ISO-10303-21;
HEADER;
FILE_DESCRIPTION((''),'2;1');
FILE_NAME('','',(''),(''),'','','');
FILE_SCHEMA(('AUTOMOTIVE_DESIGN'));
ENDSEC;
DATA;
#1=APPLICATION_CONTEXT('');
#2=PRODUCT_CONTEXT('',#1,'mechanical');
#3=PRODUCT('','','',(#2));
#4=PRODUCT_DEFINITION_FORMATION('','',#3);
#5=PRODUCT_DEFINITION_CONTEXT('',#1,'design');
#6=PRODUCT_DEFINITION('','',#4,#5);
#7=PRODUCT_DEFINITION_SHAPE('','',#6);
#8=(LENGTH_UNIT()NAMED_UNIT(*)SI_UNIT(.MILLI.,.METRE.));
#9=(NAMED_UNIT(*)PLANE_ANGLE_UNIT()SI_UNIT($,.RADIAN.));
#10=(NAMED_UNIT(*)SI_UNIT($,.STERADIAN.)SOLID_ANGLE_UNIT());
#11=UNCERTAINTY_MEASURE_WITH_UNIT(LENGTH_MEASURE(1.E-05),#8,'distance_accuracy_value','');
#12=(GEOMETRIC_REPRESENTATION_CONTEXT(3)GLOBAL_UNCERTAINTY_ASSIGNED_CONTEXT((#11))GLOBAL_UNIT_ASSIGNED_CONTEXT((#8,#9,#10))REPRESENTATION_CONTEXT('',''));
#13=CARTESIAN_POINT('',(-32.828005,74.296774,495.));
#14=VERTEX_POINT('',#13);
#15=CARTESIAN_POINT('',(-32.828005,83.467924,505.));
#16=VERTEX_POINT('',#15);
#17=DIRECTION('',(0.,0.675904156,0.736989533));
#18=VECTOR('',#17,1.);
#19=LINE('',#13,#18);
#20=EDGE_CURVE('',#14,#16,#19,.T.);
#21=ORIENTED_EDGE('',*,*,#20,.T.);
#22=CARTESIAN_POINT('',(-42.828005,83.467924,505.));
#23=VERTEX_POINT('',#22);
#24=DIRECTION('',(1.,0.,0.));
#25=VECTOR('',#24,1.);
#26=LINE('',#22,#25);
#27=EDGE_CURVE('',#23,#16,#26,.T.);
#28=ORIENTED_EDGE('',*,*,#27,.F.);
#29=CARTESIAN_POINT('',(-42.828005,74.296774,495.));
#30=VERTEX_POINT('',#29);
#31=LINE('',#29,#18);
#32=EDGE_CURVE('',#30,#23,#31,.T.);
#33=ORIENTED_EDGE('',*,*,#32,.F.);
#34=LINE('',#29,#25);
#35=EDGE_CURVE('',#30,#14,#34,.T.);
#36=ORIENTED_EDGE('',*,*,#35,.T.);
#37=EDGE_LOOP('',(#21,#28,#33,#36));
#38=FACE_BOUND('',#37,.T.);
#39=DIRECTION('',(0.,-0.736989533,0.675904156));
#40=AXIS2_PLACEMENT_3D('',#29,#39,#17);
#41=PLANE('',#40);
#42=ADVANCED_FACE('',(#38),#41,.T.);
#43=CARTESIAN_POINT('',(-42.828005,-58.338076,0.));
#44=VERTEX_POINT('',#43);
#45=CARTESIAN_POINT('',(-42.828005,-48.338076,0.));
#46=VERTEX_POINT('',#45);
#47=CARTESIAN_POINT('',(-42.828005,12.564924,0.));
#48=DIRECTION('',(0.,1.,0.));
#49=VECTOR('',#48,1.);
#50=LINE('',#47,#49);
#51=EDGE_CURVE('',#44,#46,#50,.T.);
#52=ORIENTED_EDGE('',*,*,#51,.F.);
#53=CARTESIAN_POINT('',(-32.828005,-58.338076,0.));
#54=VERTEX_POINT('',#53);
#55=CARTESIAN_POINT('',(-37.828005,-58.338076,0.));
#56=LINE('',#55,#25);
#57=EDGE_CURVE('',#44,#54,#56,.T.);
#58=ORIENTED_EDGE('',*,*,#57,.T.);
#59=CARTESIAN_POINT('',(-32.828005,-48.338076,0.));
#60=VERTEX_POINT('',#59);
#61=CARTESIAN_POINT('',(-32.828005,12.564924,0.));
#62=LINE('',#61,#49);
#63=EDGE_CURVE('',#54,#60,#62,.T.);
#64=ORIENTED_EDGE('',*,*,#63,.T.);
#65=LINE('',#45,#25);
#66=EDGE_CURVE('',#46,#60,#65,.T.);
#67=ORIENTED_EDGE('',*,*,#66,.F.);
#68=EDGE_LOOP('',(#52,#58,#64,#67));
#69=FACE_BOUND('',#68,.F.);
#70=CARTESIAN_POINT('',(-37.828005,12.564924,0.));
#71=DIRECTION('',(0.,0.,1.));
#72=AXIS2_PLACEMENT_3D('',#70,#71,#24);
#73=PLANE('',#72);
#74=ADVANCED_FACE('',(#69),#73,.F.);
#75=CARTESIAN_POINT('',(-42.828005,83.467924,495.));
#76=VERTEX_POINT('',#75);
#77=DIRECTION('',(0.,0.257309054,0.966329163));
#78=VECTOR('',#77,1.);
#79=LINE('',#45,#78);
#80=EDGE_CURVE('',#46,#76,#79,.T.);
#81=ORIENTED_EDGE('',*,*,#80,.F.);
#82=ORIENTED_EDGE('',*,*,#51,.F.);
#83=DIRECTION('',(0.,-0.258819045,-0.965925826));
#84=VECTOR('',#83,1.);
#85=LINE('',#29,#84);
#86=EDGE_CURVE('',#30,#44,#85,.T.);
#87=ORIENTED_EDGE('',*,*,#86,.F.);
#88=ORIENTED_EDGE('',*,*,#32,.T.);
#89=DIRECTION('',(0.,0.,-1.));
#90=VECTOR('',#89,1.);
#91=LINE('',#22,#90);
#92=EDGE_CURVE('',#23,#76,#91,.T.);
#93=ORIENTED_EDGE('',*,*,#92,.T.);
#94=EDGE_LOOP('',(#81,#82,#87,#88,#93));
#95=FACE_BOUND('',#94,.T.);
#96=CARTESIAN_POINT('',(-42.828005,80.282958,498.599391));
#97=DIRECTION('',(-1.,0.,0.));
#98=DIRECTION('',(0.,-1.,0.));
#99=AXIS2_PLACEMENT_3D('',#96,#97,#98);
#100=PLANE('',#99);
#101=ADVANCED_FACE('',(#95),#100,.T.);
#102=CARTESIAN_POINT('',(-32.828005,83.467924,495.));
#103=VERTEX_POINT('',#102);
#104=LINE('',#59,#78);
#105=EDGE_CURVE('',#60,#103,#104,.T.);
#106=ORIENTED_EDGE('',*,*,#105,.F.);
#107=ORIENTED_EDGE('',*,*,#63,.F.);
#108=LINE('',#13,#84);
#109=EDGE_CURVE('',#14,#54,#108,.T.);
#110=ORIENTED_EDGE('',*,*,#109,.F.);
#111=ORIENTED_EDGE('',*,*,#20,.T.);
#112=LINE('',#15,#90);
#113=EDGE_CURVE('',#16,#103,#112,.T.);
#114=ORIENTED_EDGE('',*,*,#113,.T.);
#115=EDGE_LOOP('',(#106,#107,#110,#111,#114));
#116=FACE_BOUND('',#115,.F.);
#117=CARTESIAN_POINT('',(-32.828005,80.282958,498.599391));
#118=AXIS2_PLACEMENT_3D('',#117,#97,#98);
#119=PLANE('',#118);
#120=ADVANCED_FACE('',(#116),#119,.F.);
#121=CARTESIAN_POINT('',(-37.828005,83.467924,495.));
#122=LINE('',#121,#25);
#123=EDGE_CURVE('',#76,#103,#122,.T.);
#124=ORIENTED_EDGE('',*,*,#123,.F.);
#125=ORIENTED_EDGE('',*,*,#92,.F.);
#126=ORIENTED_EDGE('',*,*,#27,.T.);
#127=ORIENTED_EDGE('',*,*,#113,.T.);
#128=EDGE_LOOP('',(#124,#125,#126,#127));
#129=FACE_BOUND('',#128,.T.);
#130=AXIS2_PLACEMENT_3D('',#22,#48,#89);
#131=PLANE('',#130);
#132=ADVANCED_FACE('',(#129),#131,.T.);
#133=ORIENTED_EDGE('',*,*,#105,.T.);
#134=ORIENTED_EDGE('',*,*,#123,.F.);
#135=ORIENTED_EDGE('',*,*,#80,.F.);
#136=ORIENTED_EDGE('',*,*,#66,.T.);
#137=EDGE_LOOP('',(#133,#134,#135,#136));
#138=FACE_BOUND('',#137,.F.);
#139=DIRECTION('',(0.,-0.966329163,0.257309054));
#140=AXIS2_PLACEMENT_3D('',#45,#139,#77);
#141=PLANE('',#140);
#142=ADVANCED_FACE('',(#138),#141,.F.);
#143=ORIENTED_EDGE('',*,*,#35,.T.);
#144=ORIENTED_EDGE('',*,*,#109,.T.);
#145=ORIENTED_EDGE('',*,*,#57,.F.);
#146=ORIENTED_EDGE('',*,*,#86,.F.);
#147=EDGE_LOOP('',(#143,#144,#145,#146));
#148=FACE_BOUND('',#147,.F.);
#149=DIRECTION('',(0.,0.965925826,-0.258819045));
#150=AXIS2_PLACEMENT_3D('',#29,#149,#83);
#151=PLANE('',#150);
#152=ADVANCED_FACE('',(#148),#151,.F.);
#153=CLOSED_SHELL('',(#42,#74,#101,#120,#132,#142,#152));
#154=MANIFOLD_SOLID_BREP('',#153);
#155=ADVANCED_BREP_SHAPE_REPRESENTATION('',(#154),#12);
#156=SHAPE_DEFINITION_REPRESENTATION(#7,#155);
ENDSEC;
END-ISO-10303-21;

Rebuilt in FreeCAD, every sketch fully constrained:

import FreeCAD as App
import Part
import Sketcher
from FreeCAD import Vector
Q = App.Units.Quantity


def add_polygon(sketch, points):
    """Adds a closed chain of lines whose ends are joined by coincident constraints."""
    first, n = sketch.GeometryCount, len(points)
    for a, b in zip(points, points[1:] + points[:1]):
        sketch.addGeometry(Part.LineSegment(App.Vector(*a, 0), App.Vector(*b, 0)), False)
    for i in range(n):
        sketch.addConstraint(Sketcher.Constraint("Coincident", first + i, 2, first + (i + 1) % n, 1))

doc = App.newDocument("Part")
body = doc.addObject("PartDesign::Body", "Body")

sketch1 = body.newObject("Sketcher::SketchObject", "Sketch")
sketch1.AttachmentSupport = (doc.getObject("XY_Plane"), [""])
sketch1.MapMode = "FlatFace"
add_polygon(sketch1, [(-43, 83), (-43, -58), (-33, -58), (-33, 83)])
sketch1.addConstraint([
    Sketcher.Constraint("Vertical", 0),
    Sketcher.Constraint("Horizontal", 1),
    Sketcher.Constraint("Vertical", 2),
    Sketcher.Constraint("Horizontal", 3),
    Sketcher.Constraint("DistanceX", 1, 1, 1, 2, Q("10 mm")),
    Sketcher.Constraint("DistanceY", 0, 2, 0, 1, Q("141.806 mm")),
    Sketcher.Constraint("DistanceX", 0, 2, -1, 1, Q("42.828005 mm")),
    Sketcher.Constraint("DistanceY", 0, 2, -1, 1, Q("58.338076 mm")),
])
pad1 = body.newObject("PartDesign::Pad", "Pad")
pad1.Profile = sketch1
pad1.Length = 495

sketch2 = body.newObject("Sketcher::SketchObject", "Sketch001")
sketch2.AttachmentSupport = (doc.getObject("YZ_Plane"), [""])
sketch2.MapMode = "FlatFace"
sketch2.AttachmentOffset = App.Placement(Vector(0, 0, -42.828005), App.Rotation())
add_polygon(sketch2, [(83, 0), (-48, 0), (83, 495)])
add_polygon(sketch2, [(74, 495), (-58, 0), (-58, 495)])
sketch2.addConstraint([
    Sketcher.Constraint("Horizontal", 0),
    Sketcher.Constraint("Vertical", 2),
    Sketcher.Constraint("Vertical", 4),
    Sketcher.Constraint("Horizontal", 5),
    Sketcher.Constraint("PointOnObject", 0, 2, -1),
    Sketcher.Constraint("PointOnObject", 3, 2, -1),
    Sketcher.Constraint("Horizontal", 1, 2, 4, 2),
    Sketcher.Constraint("DistanceY", 2, 2, 2, 1, Q("495 mm")),
    Sketcher.Constraint("Angle", 3, Q("-105 deg")),
    Sketcher.Constraint("DistanceX", 3, 2, 0, 2, Q("10 mm")),
    Sketcher.Constraint("DistanceX", 0, 2, 0, 1, Q("131.806 mm")),
    Sketcher.Constraint("DistanceX", 0, 2, -1, 1, Q("48.338076 mm")),
])
pocket1 = body.newObject("PartDesign::Pocket", "Pocket")
pocket1.Profile = sketch2
pocket1.Length = 10
pocket1.Reversed = True

sketch3 = body.newObject("Sketcher::SketchObject", "Sketch002")
sketch3.AttachmentSupport = (doc.getObject("YZ_Plane"), [""])
sketch3.MapMode = "FlatFace"
sketch3.AttachmentOffset = App.Placement(Vector(0, 0, -42.828005), App.Rotation())
add_polygon(sketch3, [(83, 505), (83, 495), (74, 495)])
sketch3.addConstraint([
    Sketcher.Constraint("Vertical", 0),
    Sketcher.Constraint("Horizontal", 1),
    Sketcher.Constraint("DistanceY", 0, 2, 0, 1, Q("10 mm")),
    Sketcher.Constraint("DistanceY", -1, 1, 0, 2, Q("495 mm")),
    Sketcher.Constraint("DistanceX", 1, 2, 1, 1, Q("9.17115 mm")),
    Sketcher.Constraint("DistanceX", -1, 1, 0, 2, Q("83.467924 mm")),
])
pad2 = body.newObject("PartDesign::Pad", "Pad001")
pad2.Profile = sketch3
pad2.Length = 10

doc.recompute()
